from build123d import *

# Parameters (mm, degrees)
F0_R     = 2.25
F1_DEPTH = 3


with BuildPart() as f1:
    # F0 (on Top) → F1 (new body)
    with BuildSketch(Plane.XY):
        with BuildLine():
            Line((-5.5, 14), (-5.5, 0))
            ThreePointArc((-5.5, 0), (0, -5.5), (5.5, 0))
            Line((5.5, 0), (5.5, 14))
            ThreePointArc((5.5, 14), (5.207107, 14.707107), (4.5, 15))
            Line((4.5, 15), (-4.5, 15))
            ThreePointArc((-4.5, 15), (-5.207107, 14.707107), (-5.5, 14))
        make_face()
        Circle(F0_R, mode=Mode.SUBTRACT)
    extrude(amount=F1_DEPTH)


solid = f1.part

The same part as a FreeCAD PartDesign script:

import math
import FreeCAD as App
import Part
import Sketcher
from FreeCAD import Vector
Q = App.Units.Quantity

doc = App.newDocument("Part")
body = doc.addObject("PartDesign::Body", "Body")

sketch1 = body.newObject("Sketcher::SketchObject", "Sketch")
sketch1.AttachmentSupport = (doc.getObject("XY_Plane"), [""])
sketch1.MapMode = "FlatFace"
sketch1.addGeometry([
    Part.LineSegment(Vector(-5.5, 14, 0), Vector(-5.5, 0, 0)),
    Part.ArcOfCircle(Part.Circle(Vector(0, 0, 0), Vector(0, 0, 1), 5.5), math.radians(180), math.radians(360)),
    Part.LineSegment(Vector(5.5, 0, 0), Vector(5.5, 14, 0)),
    Part.ArcOfCircle(Part.Circle(Vector(4.500001, 14.000001, 0), Vector(0, 0, 1), 0.999999), math.radians(-0.000043), math.radians(90.000043)),
    Part.LineSegment(Vector(4.5, 15, 0), Vector(-4.5, 15, 0)),
    Part.ArcOfCircle(Part.Circle(Vector(-4.500001, 14.000001, 0), Vector(0, 0, 1), 0.999999), math.radians(89.999957), math.radians(180.000043)),
    Part.Circle(Vector(0, 0, 0), Vector(0, 0, 1), 2.25),
], False)
sketch1.addConstraint([
    Sketcher.Constraint("Tangent", 0, 2, 1, 1),
    Sketcher.Constraint("Tangent", 1, 2, 2, 1),
    Sketcher.Constraint("Tangent", 2, 2, 3, 1),
    Sketcher.Constraint("Tangent", 3, 2, 4, 1),
    Sketcher.Constraint("Tangent", 4, 2, 5, 1),
    Sketcher.Constraint("Tangent", 5, 2, 0, 1),
    Sketcher.Constraint("Vertical", 0),
    Sketcher.Constraint("Vertical", 2),
    Sketcher.Constraint("Horizontal", 4),
    Sketcher.Constraint("Coincident", 1, 3, -1, 1),
    Sketcher.Constraint("Coincident", 6, 3, -1, 1),
    Sketcher.Constraint("Equal", 3, 5),
    Sketcher.Constraint("Radius", 3, Q("0.999999 mm")),
    Sketcher.Constraint("Diameter", 6, Q("4.5 mm")),
    Sketcher.Constraint("Radius", 1, Q("5.5 mm")),
    Sketcher.Constraint("DistanceY", 0, 2, 0, 1, Q("14 mm")),
])
pad1 = body.newObject("PartDesign::Pad", "Pad")
pad1.Profile = sketch1
pad1.Length = 3

doc.recompute()
